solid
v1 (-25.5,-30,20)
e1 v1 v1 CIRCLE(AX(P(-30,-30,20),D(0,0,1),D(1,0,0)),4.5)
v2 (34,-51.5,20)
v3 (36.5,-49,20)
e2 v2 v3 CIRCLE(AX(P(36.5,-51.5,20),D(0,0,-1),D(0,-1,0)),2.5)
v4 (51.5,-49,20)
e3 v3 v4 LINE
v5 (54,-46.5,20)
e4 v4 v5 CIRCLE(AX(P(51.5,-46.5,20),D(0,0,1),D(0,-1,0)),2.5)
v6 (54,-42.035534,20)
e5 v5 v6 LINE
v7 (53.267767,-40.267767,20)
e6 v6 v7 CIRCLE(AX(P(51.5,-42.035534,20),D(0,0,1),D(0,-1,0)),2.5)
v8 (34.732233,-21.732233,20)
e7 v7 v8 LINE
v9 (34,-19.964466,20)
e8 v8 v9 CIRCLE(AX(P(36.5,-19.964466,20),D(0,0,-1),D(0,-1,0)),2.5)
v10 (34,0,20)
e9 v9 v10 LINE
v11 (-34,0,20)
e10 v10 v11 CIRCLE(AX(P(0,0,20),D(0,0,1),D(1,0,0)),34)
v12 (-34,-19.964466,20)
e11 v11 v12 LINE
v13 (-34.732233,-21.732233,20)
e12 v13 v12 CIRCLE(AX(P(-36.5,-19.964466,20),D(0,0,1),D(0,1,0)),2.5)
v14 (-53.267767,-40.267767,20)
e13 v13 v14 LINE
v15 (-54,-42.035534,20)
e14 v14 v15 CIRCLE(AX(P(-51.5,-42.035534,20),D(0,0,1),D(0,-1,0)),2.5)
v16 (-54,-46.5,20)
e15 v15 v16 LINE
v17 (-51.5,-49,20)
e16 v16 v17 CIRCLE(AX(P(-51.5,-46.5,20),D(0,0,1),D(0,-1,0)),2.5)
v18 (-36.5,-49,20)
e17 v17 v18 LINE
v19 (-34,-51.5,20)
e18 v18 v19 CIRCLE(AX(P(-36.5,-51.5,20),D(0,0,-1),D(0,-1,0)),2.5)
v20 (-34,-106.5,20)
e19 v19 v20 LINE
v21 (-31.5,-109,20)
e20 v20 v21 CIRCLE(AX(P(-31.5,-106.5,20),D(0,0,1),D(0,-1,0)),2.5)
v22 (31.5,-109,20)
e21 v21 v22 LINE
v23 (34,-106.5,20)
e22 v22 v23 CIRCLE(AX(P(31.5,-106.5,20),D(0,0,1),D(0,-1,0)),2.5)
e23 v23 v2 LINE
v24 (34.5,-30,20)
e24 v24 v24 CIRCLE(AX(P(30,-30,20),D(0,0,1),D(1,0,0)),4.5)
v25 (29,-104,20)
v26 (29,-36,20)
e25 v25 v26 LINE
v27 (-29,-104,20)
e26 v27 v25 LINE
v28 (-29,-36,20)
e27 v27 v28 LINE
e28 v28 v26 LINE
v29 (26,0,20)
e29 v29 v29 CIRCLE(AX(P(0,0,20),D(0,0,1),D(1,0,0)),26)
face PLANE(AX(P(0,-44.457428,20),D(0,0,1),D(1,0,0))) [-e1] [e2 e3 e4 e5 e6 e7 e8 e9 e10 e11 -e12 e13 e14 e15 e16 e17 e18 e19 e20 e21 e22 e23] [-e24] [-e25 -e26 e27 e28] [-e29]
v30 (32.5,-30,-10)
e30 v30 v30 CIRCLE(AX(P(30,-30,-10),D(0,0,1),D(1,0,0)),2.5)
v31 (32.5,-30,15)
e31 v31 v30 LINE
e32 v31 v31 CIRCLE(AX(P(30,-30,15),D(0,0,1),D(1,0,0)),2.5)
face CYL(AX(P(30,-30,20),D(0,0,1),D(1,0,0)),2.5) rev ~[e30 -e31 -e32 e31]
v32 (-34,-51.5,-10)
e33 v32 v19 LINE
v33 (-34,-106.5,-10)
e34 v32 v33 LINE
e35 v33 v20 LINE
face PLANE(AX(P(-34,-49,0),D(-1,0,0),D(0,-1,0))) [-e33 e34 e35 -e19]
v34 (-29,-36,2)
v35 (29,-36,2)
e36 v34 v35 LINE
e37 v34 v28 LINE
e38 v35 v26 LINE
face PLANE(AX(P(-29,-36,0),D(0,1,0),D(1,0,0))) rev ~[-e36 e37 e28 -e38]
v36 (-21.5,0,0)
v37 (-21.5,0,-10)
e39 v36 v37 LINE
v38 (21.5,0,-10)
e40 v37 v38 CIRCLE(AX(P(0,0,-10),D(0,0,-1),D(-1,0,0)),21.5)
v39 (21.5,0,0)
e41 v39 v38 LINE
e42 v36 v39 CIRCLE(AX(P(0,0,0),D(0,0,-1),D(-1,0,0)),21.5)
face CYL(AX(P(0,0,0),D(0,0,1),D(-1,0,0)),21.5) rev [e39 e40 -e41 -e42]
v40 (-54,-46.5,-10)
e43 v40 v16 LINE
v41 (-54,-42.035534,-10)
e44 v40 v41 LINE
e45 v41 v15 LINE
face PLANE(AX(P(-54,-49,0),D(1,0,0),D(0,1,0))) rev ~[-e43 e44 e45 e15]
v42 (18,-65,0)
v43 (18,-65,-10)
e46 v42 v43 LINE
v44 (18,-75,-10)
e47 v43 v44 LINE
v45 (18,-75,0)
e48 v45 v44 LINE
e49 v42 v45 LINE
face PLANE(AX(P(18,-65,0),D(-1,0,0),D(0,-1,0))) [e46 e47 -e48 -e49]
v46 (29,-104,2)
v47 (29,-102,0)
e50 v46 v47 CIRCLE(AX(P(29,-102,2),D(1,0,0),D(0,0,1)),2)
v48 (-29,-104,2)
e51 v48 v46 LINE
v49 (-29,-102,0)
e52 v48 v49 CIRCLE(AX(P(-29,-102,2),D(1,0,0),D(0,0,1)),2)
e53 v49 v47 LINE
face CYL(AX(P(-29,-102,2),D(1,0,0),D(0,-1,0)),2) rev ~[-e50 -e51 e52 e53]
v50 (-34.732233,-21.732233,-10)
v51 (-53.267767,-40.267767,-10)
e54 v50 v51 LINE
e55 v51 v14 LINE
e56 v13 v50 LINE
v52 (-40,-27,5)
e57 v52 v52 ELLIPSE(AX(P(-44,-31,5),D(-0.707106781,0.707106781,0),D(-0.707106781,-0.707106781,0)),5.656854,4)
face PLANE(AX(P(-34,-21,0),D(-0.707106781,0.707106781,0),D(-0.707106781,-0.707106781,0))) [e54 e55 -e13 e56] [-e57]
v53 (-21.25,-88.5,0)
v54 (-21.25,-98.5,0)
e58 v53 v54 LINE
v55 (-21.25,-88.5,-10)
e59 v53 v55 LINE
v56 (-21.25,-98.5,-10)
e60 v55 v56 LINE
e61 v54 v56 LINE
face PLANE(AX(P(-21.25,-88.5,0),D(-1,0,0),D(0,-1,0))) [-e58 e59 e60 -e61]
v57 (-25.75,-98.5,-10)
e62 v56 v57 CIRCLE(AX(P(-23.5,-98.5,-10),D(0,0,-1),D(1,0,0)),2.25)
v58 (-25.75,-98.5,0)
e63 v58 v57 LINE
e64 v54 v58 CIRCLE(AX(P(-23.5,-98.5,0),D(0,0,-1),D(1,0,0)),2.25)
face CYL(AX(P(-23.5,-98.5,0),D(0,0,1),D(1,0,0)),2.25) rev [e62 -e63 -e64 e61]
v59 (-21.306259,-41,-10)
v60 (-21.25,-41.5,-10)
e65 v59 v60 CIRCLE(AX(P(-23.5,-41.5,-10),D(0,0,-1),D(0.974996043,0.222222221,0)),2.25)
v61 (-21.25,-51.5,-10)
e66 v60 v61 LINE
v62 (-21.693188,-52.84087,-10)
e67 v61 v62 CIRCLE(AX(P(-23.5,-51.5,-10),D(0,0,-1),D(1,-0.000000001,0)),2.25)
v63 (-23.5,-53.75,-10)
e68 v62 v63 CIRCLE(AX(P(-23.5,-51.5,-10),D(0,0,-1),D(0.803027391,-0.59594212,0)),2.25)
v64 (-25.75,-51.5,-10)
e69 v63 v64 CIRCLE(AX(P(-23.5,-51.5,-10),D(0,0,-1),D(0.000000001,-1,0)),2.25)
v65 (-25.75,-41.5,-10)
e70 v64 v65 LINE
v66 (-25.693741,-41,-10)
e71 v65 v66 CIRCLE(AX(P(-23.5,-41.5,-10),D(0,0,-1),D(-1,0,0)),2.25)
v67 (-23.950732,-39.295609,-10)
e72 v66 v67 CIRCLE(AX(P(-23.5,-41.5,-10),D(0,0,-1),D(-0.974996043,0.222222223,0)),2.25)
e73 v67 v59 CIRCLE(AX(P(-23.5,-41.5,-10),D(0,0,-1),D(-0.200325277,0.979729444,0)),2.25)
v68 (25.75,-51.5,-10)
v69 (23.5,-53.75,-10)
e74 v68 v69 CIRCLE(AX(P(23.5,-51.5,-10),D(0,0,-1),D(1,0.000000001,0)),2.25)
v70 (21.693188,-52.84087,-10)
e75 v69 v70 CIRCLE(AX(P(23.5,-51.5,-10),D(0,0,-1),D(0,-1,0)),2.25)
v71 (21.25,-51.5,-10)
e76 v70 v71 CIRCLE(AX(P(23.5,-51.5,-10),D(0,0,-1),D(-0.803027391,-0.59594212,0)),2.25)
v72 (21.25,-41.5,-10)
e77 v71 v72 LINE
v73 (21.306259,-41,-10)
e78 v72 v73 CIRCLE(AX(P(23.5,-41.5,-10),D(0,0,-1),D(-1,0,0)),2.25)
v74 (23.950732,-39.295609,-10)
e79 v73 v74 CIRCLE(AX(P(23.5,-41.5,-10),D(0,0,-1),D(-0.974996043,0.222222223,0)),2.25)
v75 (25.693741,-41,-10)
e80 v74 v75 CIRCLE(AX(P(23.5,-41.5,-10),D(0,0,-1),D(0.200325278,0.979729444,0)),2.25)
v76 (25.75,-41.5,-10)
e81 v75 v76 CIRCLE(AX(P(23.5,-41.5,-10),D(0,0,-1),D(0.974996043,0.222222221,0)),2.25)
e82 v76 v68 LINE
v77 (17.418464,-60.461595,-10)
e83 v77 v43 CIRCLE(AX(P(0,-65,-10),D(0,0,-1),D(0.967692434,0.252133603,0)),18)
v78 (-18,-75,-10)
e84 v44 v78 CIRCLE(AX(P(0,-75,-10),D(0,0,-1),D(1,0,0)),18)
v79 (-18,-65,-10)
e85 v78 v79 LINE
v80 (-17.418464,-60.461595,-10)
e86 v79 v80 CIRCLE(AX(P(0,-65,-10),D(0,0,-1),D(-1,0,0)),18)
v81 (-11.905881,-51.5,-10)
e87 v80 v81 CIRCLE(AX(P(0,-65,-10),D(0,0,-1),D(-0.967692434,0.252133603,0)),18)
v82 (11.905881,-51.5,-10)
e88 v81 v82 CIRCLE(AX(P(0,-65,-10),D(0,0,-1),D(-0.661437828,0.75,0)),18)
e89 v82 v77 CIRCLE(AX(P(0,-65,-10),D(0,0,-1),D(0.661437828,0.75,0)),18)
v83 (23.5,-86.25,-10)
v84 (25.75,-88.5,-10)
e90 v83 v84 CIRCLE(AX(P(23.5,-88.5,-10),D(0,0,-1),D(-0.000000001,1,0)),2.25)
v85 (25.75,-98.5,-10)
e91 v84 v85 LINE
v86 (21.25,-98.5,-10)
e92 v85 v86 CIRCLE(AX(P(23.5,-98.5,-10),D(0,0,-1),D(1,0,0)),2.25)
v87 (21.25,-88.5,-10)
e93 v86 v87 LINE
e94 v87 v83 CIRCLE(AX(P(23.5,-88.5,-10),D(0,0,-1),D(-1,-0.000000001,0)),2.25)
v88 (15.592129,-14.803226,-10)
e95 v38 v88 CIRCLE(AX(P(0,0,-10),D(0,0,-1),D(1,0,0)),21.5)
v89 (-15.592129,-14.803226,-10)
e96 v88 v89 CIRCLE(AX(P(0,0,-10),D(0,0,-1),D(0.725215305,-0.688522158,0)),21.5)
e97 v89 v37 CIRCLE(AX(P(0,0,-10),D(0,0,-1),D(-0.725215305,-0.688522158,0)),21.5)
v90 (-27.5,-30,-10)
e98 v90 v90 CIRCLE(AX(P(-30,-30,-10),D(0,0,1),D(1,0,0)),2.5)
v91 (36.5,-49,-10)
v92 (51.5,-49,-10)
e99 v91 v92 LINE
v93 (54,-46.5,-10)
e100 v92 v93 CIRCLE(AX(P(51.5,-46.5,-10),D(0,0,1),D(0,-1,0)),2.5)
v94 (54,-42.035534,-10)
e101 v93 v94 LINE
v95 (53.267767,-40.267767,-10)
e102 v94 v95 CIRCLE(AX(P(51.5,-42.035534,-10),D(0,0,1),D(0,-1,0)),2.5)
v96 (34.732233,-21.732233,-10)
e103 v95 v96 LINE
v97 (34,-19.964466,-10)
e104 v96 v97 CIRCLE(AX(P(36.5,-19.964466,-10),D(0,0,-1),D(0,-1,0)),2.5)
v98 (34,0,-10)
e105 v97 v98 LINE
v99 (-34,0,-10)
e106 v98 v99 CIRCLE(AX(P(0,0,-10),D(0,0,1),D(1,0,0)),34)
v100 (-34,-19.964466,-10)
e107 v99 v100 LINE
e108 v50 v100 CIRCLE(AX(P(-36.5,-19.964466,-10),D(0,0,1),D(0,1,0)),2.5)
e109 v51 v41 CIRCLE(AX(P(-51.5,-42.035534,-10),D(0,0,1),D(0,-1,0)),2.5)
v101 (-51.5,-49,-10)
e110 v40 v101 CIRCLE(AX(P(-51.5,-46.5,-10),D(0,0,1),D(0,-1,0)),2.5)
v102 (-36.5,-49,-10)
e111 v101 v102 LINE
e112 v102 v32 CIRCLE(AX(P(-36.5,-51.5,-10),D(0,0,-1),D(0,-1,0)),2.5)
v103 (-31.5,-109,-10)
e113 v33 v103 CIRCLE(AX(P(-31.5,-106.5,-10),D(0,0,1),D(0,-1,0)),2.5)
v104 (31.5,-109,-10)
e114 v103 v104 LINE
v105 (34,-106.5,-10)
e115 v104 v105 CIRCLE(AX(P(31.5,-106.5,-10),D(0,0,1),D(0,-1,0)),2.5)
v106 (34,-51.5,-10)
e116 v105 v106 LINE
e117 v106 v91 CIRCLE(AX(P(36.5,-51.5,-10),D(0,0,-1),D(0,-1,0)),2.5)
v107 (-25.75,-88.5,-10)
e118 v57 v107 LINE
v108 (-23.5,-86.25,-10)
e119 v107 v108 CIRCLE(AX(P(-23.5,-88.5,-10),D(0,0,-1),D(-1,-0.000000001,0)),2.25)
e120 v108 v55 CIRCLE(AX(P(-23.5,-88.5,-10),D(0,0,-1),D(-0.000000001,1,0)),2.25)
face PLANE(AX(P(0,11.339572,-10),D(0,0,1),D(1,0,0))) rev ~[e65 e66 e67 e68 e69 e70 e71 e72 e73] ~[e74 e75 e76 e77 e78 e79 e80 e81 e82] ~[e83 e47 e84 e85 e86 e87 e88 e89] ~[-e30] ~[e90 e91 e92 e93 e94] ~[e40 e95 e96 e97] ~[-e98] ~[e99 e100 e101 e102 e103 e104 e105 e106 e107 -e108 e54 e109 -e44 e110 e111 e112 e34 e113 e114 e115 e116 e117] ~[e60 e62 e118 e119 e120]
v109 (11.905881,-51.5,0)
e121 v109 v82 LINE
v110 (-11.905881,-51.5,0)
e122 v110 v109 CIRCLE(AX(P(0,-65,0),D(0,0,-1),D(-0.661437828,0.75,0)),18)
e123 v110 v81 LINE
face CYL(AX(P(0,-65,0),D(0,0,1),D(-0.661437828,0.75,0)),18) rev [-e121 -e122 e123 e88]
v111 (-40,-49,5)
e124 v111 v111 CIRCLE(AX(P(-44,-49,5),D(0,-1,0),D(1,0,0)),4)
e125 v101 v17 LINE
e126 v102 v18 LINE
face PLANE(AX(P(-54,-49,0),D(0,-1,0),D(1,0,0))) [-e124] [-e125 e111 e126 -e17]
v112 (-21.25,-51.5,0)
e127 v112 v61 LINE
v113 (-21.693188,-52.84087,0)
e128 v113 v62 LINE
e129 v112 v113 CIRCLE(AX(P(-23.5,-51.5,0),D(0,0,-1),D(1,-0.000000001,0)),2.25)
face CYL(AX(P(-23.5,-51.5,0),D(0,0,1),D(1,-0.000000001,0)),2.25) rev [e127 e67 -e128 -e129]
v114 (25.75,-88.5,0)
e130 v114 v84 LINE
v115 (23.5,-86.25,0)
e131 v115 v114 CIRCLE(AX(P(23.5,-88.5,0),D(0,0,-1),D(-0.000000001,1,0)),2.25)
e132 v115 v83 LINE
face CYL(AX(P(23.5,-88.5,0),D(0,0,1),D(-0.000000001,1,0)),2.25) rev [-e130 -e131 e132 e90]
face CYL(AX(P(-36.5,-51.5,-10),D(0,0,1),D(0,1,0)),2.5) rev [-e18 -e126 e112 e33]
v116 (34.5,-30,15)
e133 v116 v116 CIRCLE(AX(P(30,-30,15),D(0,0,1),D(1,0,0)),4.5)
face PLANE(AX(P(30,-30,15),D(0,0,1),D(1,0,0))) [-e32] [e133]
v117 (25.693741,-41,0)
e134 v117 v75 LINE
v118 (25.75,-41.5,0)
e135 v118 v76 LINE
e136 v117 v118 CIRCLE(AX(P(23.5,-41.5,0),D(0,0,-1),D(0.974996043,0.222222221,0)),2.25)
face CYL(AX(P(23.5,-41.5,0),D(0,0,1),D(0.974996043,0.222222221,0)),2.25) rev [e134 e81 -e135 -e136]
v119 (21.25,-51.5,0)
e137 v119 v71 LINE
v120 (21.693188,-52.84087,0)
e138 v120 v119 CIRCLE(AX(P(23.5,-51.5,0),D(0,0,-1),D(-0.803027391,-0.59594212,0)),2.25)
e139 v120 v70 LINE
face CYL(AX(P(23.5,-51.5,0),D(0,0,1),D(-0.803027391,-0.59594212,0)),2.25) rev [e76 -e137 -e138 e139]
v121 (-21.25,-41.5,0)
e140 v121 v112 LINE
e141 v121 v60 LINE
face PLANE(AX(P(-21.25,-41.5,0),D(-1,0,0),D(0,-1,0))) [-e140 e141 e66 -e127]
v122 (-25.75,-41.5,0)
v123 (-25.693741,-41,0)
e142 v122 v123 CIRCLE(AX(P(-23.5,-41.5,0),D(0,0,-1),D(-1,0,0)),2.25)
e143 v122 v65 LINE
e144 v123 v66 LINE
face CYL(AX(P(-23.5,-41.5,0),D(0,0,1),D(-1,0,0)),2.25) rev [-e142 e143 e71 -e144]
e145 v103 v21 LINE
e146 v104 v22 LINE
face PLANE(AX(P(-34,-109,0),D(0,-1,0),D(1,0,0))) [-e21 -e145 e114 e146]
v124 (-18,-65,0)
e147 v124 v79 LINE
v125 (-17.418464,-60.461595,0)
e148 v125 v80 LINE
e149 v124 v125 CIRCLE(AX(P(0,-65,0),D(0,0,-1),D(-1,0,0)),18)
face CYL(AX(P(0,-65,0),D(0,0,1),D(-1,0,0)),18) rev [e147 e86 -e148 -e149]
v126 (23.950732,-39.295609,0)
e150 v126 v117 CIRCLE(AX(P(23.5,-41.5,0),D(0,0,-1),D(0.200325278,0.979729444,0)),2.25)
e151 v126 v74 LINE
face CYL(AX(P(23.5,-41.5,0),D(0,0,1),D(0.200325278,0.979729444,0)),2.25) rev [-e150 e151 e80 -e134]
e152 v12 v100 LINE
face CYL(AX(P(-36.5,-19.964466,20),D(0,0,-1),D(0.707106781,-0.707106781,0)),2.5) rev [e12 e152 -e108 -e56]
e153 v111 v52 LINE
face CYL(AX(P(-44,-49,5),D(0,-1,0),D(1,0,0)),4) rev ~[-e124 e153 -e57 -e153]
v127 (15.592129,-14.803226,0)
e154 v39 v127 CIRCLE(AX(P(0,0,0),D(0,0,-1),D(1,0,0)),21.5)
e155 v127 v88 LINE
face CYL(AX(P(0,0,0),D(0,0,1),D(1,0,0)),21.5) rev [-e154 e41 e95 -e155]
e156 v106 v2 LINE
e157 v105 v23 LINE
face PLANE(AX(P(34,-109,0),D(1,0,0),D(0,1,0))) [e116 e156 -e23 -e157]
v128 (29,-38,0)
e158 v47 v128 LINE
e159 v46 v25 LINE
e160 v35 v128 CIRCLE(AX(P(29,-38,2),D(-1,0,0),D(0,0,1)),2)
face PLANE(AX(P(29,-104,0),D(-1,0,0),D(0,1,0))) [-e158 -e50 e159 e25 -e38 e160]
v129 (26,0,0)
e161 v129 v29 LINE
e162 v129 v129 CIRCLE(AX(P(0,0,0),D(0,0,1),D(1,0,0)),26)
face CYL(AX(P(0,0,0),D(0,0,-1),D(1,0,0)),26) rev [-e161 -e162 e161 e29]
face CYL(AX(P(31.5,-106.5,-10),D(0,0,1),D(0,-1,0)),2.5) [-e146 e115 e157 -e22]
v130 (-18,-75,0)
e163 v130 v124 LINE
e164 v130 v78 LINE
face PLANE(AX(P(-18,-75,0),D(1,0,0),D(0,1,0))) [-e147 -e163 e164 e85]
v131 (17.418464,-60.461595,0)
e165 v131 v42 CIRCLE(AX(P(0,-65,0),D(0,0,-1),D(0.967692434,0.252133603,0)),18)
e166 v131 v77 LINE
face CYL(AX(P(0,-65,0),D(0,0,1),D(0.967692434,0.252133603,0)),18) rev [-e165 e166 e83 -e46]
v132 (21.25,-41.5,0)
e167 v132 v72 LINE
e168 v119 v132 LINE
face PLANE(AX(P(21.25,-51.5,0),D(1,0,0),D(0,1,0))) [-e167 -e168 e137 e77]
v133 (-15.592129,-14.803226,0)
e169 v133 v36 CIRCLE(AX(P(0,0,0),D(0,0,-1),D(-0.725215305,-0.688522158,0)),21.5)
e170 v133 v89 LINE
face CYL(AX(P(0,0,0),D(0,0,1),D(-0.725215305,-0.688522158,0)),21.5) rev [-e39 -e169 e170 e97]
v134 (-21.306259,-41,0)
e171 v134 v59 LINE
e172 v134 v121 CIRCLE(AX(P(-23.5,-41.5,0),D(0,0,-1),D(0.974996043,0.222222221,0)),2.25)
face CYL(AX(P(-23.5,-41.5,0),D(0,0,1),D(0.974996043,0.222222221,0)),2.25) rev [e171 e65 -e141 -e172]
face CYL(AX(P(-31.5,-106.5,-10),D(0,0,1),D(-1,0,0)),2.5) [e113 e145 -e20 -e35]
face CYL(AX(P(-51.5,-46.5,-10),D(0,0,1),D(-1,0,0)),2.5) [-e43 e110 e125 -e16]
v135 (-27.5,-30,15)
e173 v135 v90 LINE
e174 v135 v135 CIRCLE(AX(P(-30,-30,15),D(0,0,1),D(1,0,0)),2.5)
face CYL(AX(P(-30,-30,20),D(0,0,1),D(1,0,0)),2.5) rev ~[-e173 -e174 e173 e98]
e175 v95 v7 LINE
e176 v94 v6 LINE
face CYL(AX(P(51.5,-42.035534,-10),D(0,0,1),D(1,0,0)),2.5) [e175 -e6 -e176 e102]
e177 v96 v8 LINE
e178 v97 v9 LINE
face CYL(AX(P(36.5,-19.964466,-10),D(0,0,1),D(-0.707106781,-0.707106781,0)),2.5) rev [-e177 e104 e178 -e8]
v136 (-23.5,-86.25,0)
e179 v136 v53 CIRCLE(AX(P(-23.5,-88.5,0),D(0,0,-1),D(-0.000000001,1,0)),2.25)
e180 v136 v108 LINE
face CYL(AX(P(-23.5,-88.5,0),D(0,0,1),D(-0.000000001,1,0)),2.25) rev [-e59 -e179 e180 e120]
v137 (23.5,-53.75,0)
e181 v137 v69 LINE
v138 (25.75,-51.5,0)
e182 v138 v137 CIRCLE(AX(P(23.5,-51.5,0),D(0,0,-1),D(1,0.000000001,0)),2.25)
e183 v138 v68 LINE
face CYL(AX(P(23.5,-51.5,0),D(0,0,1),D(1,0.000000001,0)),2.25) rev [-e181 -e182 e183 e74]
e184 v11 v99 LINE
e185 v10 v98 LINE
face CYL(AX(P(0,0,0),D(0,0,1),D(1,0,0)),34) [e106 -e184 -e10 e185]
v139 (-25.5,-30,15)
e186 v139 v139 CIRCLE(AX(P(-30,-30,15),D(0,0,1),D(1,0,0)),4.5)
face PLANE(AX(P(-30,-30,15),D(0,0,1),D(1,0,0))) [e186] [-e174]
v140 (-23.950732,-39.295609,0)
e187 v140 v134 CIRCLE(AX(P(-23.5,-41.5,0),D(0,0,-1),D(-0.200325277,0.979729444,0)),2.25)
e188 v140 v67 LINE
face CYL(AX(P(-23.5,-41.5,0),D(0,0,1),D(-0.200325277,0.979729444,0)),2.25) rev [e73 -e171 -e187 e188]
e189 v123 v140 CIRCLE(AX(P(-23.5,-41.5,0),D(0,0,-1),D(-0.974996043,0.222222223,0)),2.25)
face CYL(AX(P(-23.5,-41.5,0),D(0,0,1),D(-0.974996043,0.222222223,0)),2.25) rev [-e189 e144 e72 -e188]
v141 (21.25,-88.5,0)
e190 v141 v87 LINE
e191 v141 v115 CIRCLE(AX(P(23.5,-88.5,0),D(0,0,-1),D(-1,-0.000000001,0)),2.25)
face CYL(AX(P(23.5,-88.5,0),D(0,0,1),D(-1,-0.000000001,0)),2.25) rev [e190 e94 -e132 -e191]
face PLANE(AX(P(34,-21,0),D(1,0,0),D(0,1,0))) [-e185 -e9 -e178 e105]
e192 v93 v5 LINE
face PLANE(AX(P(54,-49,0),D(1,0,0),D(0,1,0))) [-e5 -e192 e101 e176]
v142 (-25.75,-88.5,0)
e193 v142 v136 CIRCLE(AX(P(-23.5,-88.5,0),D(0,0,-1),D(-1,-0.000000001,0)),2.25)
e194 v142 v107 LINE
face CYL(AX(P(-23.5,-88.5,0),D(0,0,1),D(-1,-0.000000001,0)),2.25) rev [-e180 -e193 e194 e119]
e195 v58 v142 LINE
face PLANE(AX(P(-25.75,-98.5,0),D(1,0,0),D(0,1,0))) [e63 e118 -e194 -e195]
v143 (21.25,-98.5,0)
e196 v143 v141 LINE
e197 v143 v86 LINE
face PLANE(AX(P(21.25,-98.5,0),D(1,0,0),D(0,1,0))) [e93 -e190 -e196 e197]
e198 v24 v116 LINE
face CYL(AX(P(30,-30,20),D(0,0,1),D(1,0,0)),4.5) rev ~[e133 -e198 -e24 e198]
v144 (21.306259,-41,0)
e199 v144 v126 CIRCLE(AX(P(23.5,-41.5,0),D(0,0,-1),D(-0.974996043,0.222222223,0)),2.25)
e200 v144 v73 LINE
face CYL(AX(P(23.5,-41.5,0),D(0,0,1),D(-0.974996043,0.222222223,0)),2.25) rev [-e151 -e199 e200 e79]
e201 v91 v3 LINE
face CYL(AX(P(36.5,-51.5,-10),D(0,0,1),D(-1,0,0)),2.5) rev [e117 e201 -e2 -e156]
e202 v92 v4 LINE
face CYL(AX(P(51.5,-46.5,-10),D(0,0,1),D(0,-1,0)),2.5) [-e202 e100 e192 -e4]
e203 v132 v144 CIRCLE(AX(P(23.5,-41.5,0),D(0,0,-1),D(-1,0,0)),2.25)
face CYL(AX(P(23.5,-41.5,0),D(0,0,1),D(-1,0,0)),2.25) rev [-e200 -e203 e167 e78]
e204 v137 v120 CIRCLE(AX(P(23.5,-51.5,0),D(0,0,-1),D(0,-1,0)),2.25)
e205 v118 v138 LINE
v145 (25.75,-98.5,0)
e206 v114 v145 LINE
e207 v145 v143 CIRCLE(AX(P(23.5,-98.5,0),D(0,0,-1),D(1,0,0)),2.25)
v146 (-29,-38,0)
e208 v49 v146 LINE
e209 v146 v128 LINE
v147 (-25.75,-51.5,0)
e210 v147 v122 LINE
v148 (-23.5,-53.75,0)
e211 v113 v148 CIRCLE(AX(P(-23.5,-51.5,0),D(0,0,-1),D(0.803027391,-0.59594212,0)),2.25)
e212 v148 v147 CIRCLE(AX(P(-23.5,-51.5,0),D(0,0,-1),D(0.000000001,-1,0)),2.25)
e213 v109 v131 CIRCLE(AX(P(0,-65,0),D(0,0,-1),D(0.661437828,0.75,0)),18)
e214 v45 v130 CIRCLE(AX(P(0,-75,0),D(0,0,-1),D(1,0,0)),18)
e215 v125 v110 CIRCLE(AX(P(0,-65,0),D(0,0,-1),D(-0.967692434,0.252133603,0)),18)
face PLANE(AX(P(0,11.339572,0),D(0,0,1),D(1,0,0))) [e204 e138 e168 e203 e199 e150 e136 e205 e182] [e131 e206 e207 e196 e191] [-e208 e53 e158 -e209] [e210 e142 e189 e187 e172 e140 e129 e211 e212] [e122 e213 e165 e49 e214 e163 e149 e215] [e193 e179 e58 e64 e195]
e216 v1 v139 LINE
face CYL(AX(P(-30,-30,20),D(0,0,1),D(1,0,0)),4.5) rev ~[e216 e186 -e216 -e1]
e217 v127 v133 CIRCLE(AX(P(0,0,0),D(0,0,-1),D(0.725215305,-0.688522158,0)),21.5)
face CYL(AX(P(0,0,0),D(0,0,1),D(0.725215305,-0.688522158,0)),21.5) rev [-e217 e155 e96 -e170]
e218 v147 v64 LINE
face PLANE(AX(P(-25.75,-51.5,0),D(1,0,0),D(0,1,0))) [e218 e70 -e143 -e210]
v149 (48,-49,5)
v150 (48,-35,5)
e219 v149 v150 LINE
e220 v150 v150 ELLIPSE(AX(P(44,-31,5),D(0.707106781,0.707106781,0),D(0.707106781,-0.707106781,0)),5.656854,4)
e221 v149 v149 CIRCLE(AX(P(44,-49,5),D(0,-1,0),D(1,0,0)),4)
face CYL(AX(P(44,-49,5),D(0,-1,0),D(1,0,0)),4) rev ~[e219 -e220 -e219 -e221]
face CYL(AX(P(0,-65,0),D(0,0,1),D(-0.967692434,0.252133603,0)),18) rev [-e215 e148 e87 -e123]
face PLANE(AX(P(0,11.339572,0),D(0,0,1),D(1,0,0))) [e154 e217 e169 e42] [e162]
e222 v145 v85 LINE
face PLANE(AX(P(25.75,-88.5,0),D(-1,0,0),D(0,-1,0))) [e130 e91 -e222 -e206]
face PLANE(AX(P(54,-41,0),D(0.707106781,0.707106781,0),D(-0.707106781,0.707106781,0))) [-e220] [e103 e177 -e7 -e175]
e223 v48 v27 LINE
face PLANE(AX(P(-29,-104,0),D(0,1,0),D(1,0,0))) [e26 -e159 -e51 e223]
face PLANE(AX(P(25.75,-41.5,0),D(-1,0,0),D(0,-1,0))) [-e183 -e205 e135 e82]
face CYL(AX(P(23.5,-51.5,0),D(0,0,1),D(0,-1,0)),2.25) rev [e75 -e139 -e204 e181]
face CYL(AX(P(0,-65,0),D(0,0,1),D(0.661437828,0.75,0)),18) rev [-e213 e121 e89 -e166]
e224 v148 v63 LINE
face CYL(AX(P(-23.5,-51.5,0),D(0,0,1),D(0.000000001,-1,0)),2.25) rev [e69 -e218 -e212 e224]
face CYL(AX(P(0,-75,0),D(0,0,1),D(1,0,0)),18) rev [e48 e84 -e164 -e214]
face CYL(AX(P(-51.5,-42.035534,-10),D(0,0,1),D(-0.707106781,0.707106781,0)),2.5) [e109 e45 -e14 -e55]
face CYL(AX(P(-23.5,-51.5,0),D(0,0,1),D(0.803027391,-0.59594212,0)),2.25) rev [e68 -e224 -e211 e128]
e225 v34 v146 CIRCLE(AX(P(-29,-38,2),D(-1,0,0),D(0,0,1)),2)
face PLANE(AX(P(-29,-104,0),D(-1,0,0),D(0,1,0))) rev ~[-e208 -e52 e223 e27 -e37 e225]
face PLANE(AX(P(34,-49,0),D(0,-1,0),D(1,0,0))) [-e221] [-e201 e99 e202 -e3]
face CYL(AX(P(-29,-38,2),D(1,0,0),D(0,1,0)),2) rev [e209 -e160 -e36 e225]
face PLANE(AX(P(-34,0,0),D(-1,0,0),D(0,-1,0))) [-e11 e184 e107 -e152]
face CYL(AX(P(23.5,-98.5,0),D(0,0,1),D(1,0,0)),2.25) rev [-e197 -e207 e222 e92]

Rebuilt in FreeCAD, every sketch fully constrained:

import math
import FreeCAD as App
import Part
import Sketcher
from FreeCAD import Vector
Q = App.Units.Quantity


def edges_at(feature, points):
    """Names of the edges that pass closest to the given points."""
    edges = feature.Shape.Edges
    near = lambda p: min(range(len(edges)), key=lambda i: edges[i].distToShape(Part.Vertex(*p))[0])
    return sorted({f"Edge{near(p) + 1}" for p in points})


def add_polygon(sketch, points):
    """Adds a closed chain of lines whose ends are joined by coincident constraints."""
    first, n = sketch.GeometryCount, len(points)
    for a, b in zip(points, points[1:] + points[:1]):
        sketch.addGeometry(Part.LineSegment(App.Vector(*a, 0), App.Vector(*b, 0)), False)
    for i in range(n):
        sketch.addConstraint(Sketcher.Constraint("Coincident", first + i, 2, first + (i + 1) % n, 1))

doc = App.newDocument("Part")
body = doc.addObject("PartDesign::Body", "Body")

# Sketch on XY plane
sketch1 = doc.addObject("Sketcher::SketchObject", "Sketch")
body.addObject(sketch1)
sketch1.AttachmentSupport = (doc.XY_Plane, [""])
sketch1.MapMode = "FlatFace"
sketch1.addGeometry(Part.LineSegment(Vector(34, -109, 0), Vector(34, -49, 0)), False)  # 0
sketch1.addGeometry(Part.LineSegment(Vector(34, -49, 0), Vector(54, -49, 0)), False)  # 1
sketch1.addGeometry(Part.LineSegment(Vector(54, -49, 0), Vector(54, -41, 0)), False)  # 2
sketch1.addGeometry(Part.LineSegment(Vector(54, -41, 0), Vector(34, -21, 0)), False)  # 3
sketch1.addGeometry(Part.LineSegment(Vector(34, -21, 0), Vector(34, 0, 0)), False)  # 4
sketch1.addGeometry(Part.ArcOfCircle(Part.Circle(Vector(0, 0, 0), Vector(0, 0, 1), 34), math.radians(0), math.radians(180)), False)  # 5
sketch1.addGeometry(Part.LineSegment(Vector(-34, 0, 0), Vector(-34, -21, 0)), False)  # 6
sketch1.addGeometry(Part.LineSegment(Vector(-34, -21, 0), Vector(-54, -41, 0)), False)  # 7
sketch1.addGeometry(Part.LineSegment(Vector(-54, -41, 0), Vector(-54, -49, 0)), False)  # 8
sketch1.addGeometry(Part.LineSegment(Vector(-54, -49, 0), Vector(-34, -49, 0)), False)  # 9
sketch1.addGeometry(Part.LineSegment(Vector(-34, -49, 0), Vector(-34, -109, 0)), False)  # 10
sketch1.addGeometry(Part.LineSegment(Vector(-34, -109, 0), Vector(34, -109, 0)), False)  # 11
add_polygon(sketch1, [(29, -104), (-29, -104), (-29, -36), (29, -36)])  # lines 12-15
sketch1.addGeometry(Part.Circle(Vector(0, 0, 0), Vector(0, 0, 1), 26), False)  # 16
sketch1.addConstraint(Sketcher.Constraint("Coincident", 0, 2, 1, 1))
sketch1.addConstraint(Sketcher.Constraint("Coincident", 1, 2, 2, 1))
sketch1.addConstraint(Sketcher.Constraint("Coincident", 2, 2, 3, 1))
sketch1.addConstraint(Sketcher.Constraint("Coincident", 3, 2, 4, 1))
sketch1.addConstraint(Sketcher.Constraint("Tangent", 4, 2, 5, 1))
sketch1.addConstraint(Sketcher.Constraint("Tangent", 5, 2, 6, 1))
sketch1.addConstraint(Sketcher.Constraint("Coincident", 6, 2, 7, 1))
sketch1.addConstraint(Sketcher.Constraint("Coincident", 7, 2, 8, 1))
sketch1.addConstraint(Sketcher.Constraint("Coincident", 8, 2, 9, 1))
sketch1.addConstraint(Sketcher.Constraint("Coincident", 9, 2, 10, 1))
sketch1.addConstraint(Sketcher.Constraint("Coincident", 10, 2, 11, 1))
sketch1.addConstraint(Sketcher.Constraint("Coincident", 11, 2, 0, 1))
sketch1.addConstraint(Sketcher.Constraint("Vertical", 0))
sketch1.addConstraint(Sketcher.Constraint("Horizontal", 1))
sketch1.addConstraint(Sketcher.Constraint("Vertical", 2))
sketch1.addConstraint(Sketcher.Constraint("Vertical", 4))
sketch1.addConstraint(Sketcher.Constraint("Vertical", 6))
sketch1.addConstraint(Sketcher.Constraint("Vertical", 8))
sketch1.addConstraint(Sketcher.Constraint("Horizontal", 9))
sketch1.addConstraint(Sketcher.Constraint("Vertical", 10))
sketch1.addConstraint(Sketcher.Constraint("Horizontal", 11))
sketch1.addConstraint(Sketcher.Constraint("Horizontal", 12))
sketch1.addConstraint(Sketcher.Constraint("Vertical", 13))
sketch1.addConstraint(Sketcher.Constraint("Horizontal", 14))
sketch1.addConstraint(Sketcher.Constraint("Vertical", 15))
sketch1.addConstraint(Sketcher.Constraint("Coincident", 5, 3, -1, 1))
sketch1.addConstraint(Sketcher.Constraint("Coincident", 16, 3, -1, 1))
sketch1.addConstraint(Sketcher.Constraint("Symmetric", 2, 2, 7, 2, -2))
sketch1.addConstraint(Sketcher.Constraint("Symmetric", 0, 2, 9, 2, -2))
sketch1.addConstraint(Sketcher.Constraint("Perpendicular", 3, 7))
sketch1.addConstraint(Sketcher.Constraint("Horizontal", 3, 2, 6, 2))
sketch1.addConstraint(Sketcher.Constraint("Vertical", 0, 2, 3, 2))
sketch1.addConstraint(Sketcher.Constraint("Equal", 11, 13))
sketch1.addConstraint(Sketcher.Constraint("Diameter", 16, Q("52 mm")))
sketch1.addConstraint(Sketcher.Constraint("Radius", 5, Q("34 mm")))
sketch1.addConstraint(Sketcher.Constraint("DistanceX", 1, 1, 1, 2, Q("20 mm")))
sketch1.addConstraint(Sketcher.Constraint("DistanceX", 12, 2, 12, 1, Q("58 mm")))
sketch1.addConstraint(Sketcher.Constraint("DistanceY", 0, 1, 0, 2, Q("60 mm")))
sketch1.addConstraint(Sketcher.Constraint("DistanceY", 2, 1, 2, 2, Q("8 mm")))
sketch1.addConstraint(Sketcher.Constraint("DistanceY", 4, 1, 4, 2, Q("21 mm")))
sketch1.addConstraint(Sketcher.Constraint("DistanceX", 12, 2, -1, 1, Q("29 mm")))
sketch1.addConstraint(Sketcher.Constraint("DistanceY", 12, 2, -1, 1, Q("104 mm")))
pad1 = doc.addObject("PartDesign::Pad", "Pad")
body.addObject(pad1)
pad1.Profile = sketch1
pad1.Length = 20

# Sketch on XY plane
sketch2 = doc.addObject("Sketcher::SketchObject", "Sketch001")
body.addObject(sketch2)
sketch2.AttachmentSupport = (doc.XY_Plane, [""])
sketch2.MapMode = "FlatFace"
sketch2.addGeometry(Part.LineSegment(Vector(-34, -21, 0), Vector(-54, -41, 0)), False)
sketch2.addGeometry(Part.LineSegment(Vector(-54, -41, 0), Vector(-54, -49, 0)), False)
sketch2.addGeometry(Part.LineSegment(Vector(-54, -49, 0), Vector(-34, -49, 0)), False)
sketch2.addGeometry(Part.LineSegment(Vector(-34, -49, 0), Vector(-34, -109, 0)), False)
sketch2.addGeometry(Part.LineSegment(Vector(-34, -109, 0), Vector(34, -109, 0)), False)
sketch2.addGeometry(Part.LineSegment(Vector(34, -109, 0), Vector(34, -49, 0)), False)
sketch2.addGeometry(Part.LineSegment(Vector(34, -49, 0), Vector(54, -49, 0)), False)
sketch2.addGeometry(Part.LineSegment(Vector(54, -49, 0), Vector(54, -41, 0)), False)
sketch2.addGeometry(Part.LineSegment(Vector(54, -41, 0), Vector(34, -21, 0)), False)
sketch2.addGeometry(Part.LineSegment(Vector(34, -21, 0), Vector(34, 0, 0)), False)
sketch2.addGeometry(Part.ArcOfCircle(Part.Circle(Vector(0, 0, 0), Vector(0, 0, 1), 34), math.radians(0), math.radians(180)), False)
sketch2.addGeometry(Part.LineSegment(Vector(-34, 0, 0), Vector(-34, -21, 0)), False)
sketch2.addGeometry(Part.ArcOfCircle(Part.Circle(Vector(-23.5, -98.5, 0), Vector(0, 0, 1), 2.2), math.radians(180), math.radians(360)), False)
sketch2.addGeometry(Part.LineSegment(Vector(-25.8, -98.5, 0), Vector(-25.8, -88.5, 0)), False)
sketch2.addGeometry(Part.ArcOfCircle(Part.Circle(Vector(-23.5, -88.5, 0), Vector(0, 0, 1), 2.2), math.radians(90), math.radians(180)), False)
sketch2.addGeometry(Part.ArcOfCircle(Part.Circle(Vector(-23.5, -88.5, 0), Vector(0, 0, 1), 2.2), math.radians(0), math.radians(90)), False)
sketch2.addGeometry(Part.LineSegment(Vector(-21.2, -88.5, 0), Vector(-21.2, -98.5, 0)), False)
sketch2.addGeometry(Part.ArcOfCircle(Part.Circle(Vector(-23.5, -41.5, 0), Vector(0, 0, 1), 2.3), math.radians(167.16), math.radians(180)), False)
sketch2.addGeometry(Part.ArcOfCircle(Part.Circle(Vector(-23.5, -41.5, 0), Vector(0, 0, 1), 2.3), math.radians(102), math.radians(167)), False)
sketch2.addGeometry(Part.ArcOfCircle(Part.Circle(Vector(-23.5, -41.5, 0), Vector(0, 0, 1), 2.3), math.radians(13), math.radians(102)), False)
sketch2.addGeometry(Part.ArcOfCircle(Part.Circle(Vector(-23.5, -41.5, 0), Vector(0, 0, 1), 2.3), math.radians(0), math.radians(12.84)), False)
sketch2.addGeometry(Part.LineSegment(Vector(-21.2, -41.5, 0), Vector(-21.2, -51.5, 0)), False)
sketch2.addGeometry(Part.ArcOfCircle(Part.Circle(Vector(-23.5, -51.5, 0), Vector(0, 0, 1), 2.3), math.radians(-37), math.radians(0)), False)
sketch2.addGeometry(Part.ArcOfCircle(Part.Circle(Vector(-23.5, -51.5, 0), Vector(0, 0, 1), 2.2), math.radians(-90), math.radians(-37)), False)
sketch2.addGeometry(Part.ArcOfCircle(Part.Circle(Vector(-23.5, -51.5, 0), Vector(0, 0, 1), 2.2), math.radians(180), math.radians(270)), False)
sketch2.addGeometry(Part.LineSegment(Vector(-25.8, -51.5, 0), Vector(-25.8, -41.5, 0)), False)
sketch2.addGeometry(Part.ArcOfCircle(Part.Circle(Vector(0, -75, 0), Vector(0, 0, 1), 18), math.radians(180), math.radians(360)), False)
sketch2.addGeometry(Part.LineSegment(Vector(-18, -75, 0), Vector(-18, -65, 0)), False)
sketch2.addGeometry(Part.ArcOfCircle(Part.Circle(Vector(0, -65, 0), Vector(0, 0, 1), 18), math.radians(165.4), math.radians(180)), False)
sketch2.addGeometry(Part.ArcOfCircle(Part.Circle(Vector(0, -65, 0), Vector(0, 0, 1), 18), math.radians(131), math.radians(165)), False)
sketch2.addGeometry(Part.ArcOfCircle(Part.Circle(Vector(0, -65, 0), Vector(0, 0, 1), 18), math.radians(49), math.radians(131)), False)
sketch2.addGeometry(Part.ArcOfCircle(Part.Circle(Vector(0, -65, 0), Vector(0, 0, 1), 18), math.radians(15), math.radians(49)), False)
sketch2.addGeometry(Part.ArcOfCircle(Part.Circle(Vector(0, -65, 0), Vector(0, 0, 1), 18), math.radians(0), math.radians(14.6)), False)
sketch2.addGeometry(Part.LineSegment(Vector(18, -65, 0), Vector(18, -75, 0)), False)
sketch2.addGeometry(Part.ArcOfCircle(Part.Circle(Vector(23.5, -88.5, 0), Vector(0, 0, 1), 2.2), math.radians(0), math.radians(90)), False)
sketch2.addGeometry(Part.LineSegment(Vector(25.8, -88.5, 0), Vector(25.8, -98.5, 0)), False)
sketch2.addGeometry(Part.ArcOfCircle(Part.Circle(Vector(23.5, -98.5, 0), Vector(0, 0, 1), 2.2), math.radians(180), math.radians(360)), False)
sketch2.addGeometry(Part.LineSegment(Vector(21.2, -98.5, 0), Vector(21.2, -88.5, 0)), False)
sketch2.addGeometry(Part.ArcOfCircle(Part.Circle(Vector(23.5, -88.5, 0), Vector(0, 0, 1), 2.2), math.radians(90), math.radians(180)), False)
sketch2.addGeometry(Part.ArcOfCircle(Part.Circle(Vector(23.5, -41.5, 0), Vector(0, 0, 1), 2.3), math.radians(167.16), math.radians(180)), False)
sketch2.addGeometry(Part.ArcOfCircle(Part.Circle(Vector(23.5, -41.5, 0), Vector(0, 0, 1), 2.3), math.radians(78), math.radians(167)), False)
sketch2.addGeometry(Part.ArcOfCircle(Part.Circle(Vector(23.5, -41.5, 0), Vector(0, 0, 1), 2.3), math.radians(13), math.radians(78)), False)
sketch2.addGeometry(Part.ArcOfCircle(Part.Circle(Vector(23.5, -41.5, 0), Vector(0, 0, 1), 2.3), math.radians(0), math.radians(12.84)), False)
sketch2.addGeometry(Part.LineSegment(Vector(25.8, -41.5, 0), Vector(25.8, -51.5, 0)), False)
sketch2.addGeometry(Part.ArcOfCircle(Part.Circle(Vector(23.5, -51.5, 0), Vector(0, 0, 1), 2.2), math.radians(-90), math.radians(0)), False)
sketch2.addGeometry(Part.ArcOfCircle(Part.Circle(Vector(23.5, -51.5, 0), Vector(0, 0, 1), 2.2), math.radians(-143), math.radians(-90)), False)
sketch2.addGeometry(Part.ArcOfCircle(Part.Circle(Vector(23.5, -51.5, 0), Vector(0, 0, 1), 2.3), math.radians(-180), math.radians(-143)), False)
sketch2.addGeometry(Part.LineSegment(Vector(21.2, -51.5, 0), Vector(21.2, -41.5, 0)), False)
sketch2.addGeometry(Part.ArcOfCircle(Part.Circle(Vector(0, 0, 0), Vector(0, 0, 1), 21.5), math.radians(0), math.radians(180)), False)
sketch2.addGeometry(Part.ArcOfCircle(Part.Circle(Vector(0, 0, 0), Vector(0, 0, 1), 21.5), math.radians(-44), math.radians(0)), False)
sketch2.addGeometry(Part.ArcOfCircle(Part.Circle(Vector(0, 0, 0), Vector(0, 0, 1), 21.5), math.radians(-136), math.radians(-44)), False)
sketch2.addGeometry(Part.ArcOfCircle(Part.Circle(Vector(0, 0, 0), Vector(0, 0, 1), 21.5), math.radians(180), math.radians(224)), False)
sketch2.addConstraint(Sketcher.Constraint("Coincident", 0, 2, 1, 1))
sketch2.addConstraint(Sketcher.Constraint("Coincident", 1, 2, 2, 1))
sketch2.addConstraint(Sketcher.Constraint("Coincident", 2, 2, 3, 1))
sketch2.addConstraint(Sketcher.Constraint("Coincident", 3, 2, 4, 1))
sketch2.addConstraint(Sketcher.Constraint("Coincident", 4, 2, 5, 1))
sketch2.addConstraint(Sketcher.Constraint("Coincident", 5, 2, 6, 1))
sketch2.addConstraint(Sketcher.Constraint("Coincident", 6, 2, 7, 1))
sketch2.addConstraint(Sketcher.Constraint("Coincident", 7, 2, 8, 1))
sketch2.addConstraint(Sketcher.Constraint("Coincident", 8, 2, 9, 1))
sketch2.addConstraint(Sketcher.Constraint("Tangent", 9, 2, 10, 1))
sketch2.addConstraint(Sketcher.Constraint("Tangent", 10, 2, 11, 1))
sketch2.addConstraint(Sketcher.Constraint("Coincident", 11, 2, 0, 1))
sketch2.addConstraint(Sketcher.Constraint("Tangent", 12, 1, 13, 1))
sketch2.addConstraint(Sketcher.Constraint("Tangent", 13, 2, 14, 2))
sketch2.addConstraint(Sketcher.Constraint("Tangent", 14, 1, 15, 2))
sketch2.addConstraint(Sketcher.Constraint("Tangent", 15, 1, 16, 1))
sketch2.addConstraint(Sketcher.Constraint("Tangent", 16, 2, 12, 2))
sketch2.addConstraint(Sketcher.Constraint("Tangent", 17, 1, 18, 2))
sketch2.addConstraint(Sketcher.Constraint("Tangent", 18, 1, 19, 2))
sketch2.addConstraint(Sketcher.Constraint("Tangent", 19, 1, 20, 2))
sketch2.addConstraint(Sketcher.Constraint("Tangent", 20, 1, 21, 1))
sketch2.addConstraint(Sketcher.Constraint("Tangent", 21, 2, 22, 2))
sketch2.addConstraint(Sketcher.Constraint("Tangent", 22, 1, 23, 2))
sketch2.addConstraint(Sketcher.Constraint("Tangent", 23, 1, 24, 2))
sketch2.addConstraint(Sketcher.Constraint("Tangent", 24, 1, 25, 1))
sketch2.addConstraint(Sketcher.Constraint("Tangent", 25, 2, 17, 2))
sketch2.addConstraint(Sketcher.Constraint("Tangent", 26, 1, 27, 1))
sketch2.addConstraint(Sketcher.Constraint("Tangent", 27, 2, 28, 2))
sketch2.addConstraint(Sketcher.Constraint("Tangent", 28, 1, 29, 2))
sketch2.addConstraint(Sketcher.Constraint("Tangent", 29, 1, 30, 2))
sketch2.addConstraint(Sketcher.Constraint("Tangent", 30, 1, 31, 2))
sketch2.addConstraint(Sketcher.Constraint("Tangent", 31, 1, 32, 2))
sketch2.addConstraint(Sketcher.Constraint("Tangent", 32, 1, 33, 1))
sketch2.addConstraint(Sketcher.Constraint("Tangent", 33, 2, 26, 2))
sketch2.addConstraint(Sketcher.Constraint("Tangent", 34, 1, 35, 1))
sketch2.addConstraint(Sketcher.Constraint("Tangent", 35, 2, 36, 2))
sketch2.addConstraint(Sketcher.Constraint("Tangent", 36, 1, 37, 1))
sketch2.addConstraint(Sketcher.Constraint("Tangent", 37, 2, 38, 2))
sketch2.addConstraint(Sketcher.Constraint("Tangent", 38, 1, 34, 2))
sketch2.addConstraint(Sketcher.Constraint("Tangent", 39, 1, 40, 2))
sketch2.addConstraint(Sketcher.Constraint("Tangent", 40, 1, 41, 2))
sketch2.addConstraint(Sketcher.Constraint("Tangent", 41, 1, 42, 2))
sketch2.addConstraint(Sketcher.Constraint("Tangent", 42, 1, 43, 1))
sketch2.addConstraint(Sketcher.Constraint("Tangent", 43, 2, 44, 2))
sketch2.addConstraint(Sketcher.Constraint("Tangent", 44, 1, 45, 2))
sketch2.addConstraint(Sketcher.Constraint("Tangent", 45, 1, 46, 2))
sketch2.addConstraint(Sketcher.Constraint("Tangent", 46, 1, 47, 1))
sketch2.addConstraint(Sketcher.Constraint("Tangent", 47, 2, 39, 2))
sketch2.addConstraint(Sketcher.Constraint("Tangent", 48, 1, 49, 2))
sketch2.addConstraint(Sketcher.Constraint("Tangent", 49, 1, 50, 2))
sketch2.addConstraint(Sketcher.Constraint("Tangent", 50, 1, 51, 2))
sketch2.addConstraint(Sketcher.Constraint("Tangent", 51, 1, 48, 2))
sketch2.addConstraint(Sketcher.Constraint("Vertical", 1))
sketch2.addConstraint(Sketcher.Constraint("Horizontal", 2))
sketch2.addConstraint(Sketcher.Constraint("Vertical", 3))
sketch2.addConstraint(Sketcher.Constraint("Horizontal", 4))
sketch2.addConstraint(Sketcher.Constraint("Vertical", 5))
sketch2.addConstraint(Sketcher.Constraint("Horizontal", 6))
sketch2.addConstraint(Sketcher.Constraint("Vertical", 7))
sketch2.addConstraint(Sketcher.Constraint("Vertical", 9))
sketch2.addConstraint(Sketcher.Constraint("Vertical", 11))
sketch2.addConstraint(Sketcher.Constraint("Vertical", 13))
sketch2.addConstraint(Sketcher.Constraint("Vertical", 16))
sketch2.addConstraint(Sketcher.Constraint("Vertical", 21))
sketch2.addConstraint(Sketcher.Constraint("Vertical", 25))
sketch2.addConstraint(Sketcher.Constraint("Vertical", 27))
sketch2.addConstraint(Sketcher.Constraint("Vertical", 33))
sketch2.addConstraint(Sketcher.Constraint("Vertical", 35))
sketch2.addConstraint(Sketcher.Constraint("Vertical", 37))
sketch2.addConstraint(Sketcher.Constraint("Vertical", 43))
sketch2.addConstraint(Sketcher.Constraint("Vertical", 47))
sketch2.addConstraint(Sketcher.Constraint("Coincident", 10, 3, -1, 1))
sketch2.addConstraint(Sketcher.Constraint("Coincident", 48, 3, -1, 1))
sketch2.addConstraint(Sketcher.Constraint("Coincident", 19, 3, 17, 3))
sketch2.addConstraint(Sketcher.Constraint("Coincident", 24, 3, 22, 3))
sketch2.addConstraint(Sketcher.Constraint("Coincident", 30, 3, 28, 3))
sketch2.addConstraint(Sketcher.Constraint("Coincident", 32, 3, 28, 3))
sketch2.addConstraint(Sketcher.Constraint("Coincident", 41, 3, 39, 3))
sketch2.addConstraint(Sketcher.Constraint("Coincident", 46, 3, 44, 3))
sketch2.addConstraint(Sketcher.Constraint("Equal", 12, 14))
sketch2.addConstraint(Sketcher.Constraint("Equal", 15, 17))
sketch2.addConstraint(Sketcher.Constraint("Equal", 19, 20))
sketch2.addConstraint(Sketcher.Constraint("Equal", 24, 34))
sketch2.addConstraint(Sketcher.Constraint("Equal", 34, 36))
sketch2.addConstraint(Sketcher.Constraint("Equal", 38, 39))
sketch2.addConstraint(Sketcher.Constraint("Equal", 41, 42))
sketch2.addConstraint(Sketcher.Constraint("Equal", 48, 49))
sketch2.addConstraint(Sketcher.Constraint("Symmetric", 14, 3, 34, 3, -2))
sketch2.addConstraint(Sketcher.Constraint("Symmetric", 17, 3, 39, 3, -2))
sketch2.addConstraint(Sketcher.Constraint("Symmetric", 2, 2, 5, 2, -2))
sketch2.addConstraint(Sketcher.Constraint("Symmetric", 0, 2, 7, 2, -2))
sketch2.addConstraint(Sketcher.Constraint("Symmetric", 29, 1, 30, 1, -2))
sketch2.addConstraint(Sketcher.Constraint("Symmetric", 23, 1, 44, 1, -2))
sketch2.addConstraint(Sketcher.Constraint("PointOnObject", 48, 1, -1))
sketch2.addConstraint(Sketcher.Constraint("PointOnObject", 51, 1, -1))
sketch2.addConstraint(Sketcher.Constraint("Perpendicular", 0, 8))
sketch2.addConstraint(Sketcher.Constraint("Horizontal", 12, 3, 36, 3))
sketch2.addConstraint(Sketcher.Constraint("Horizontal", 8, 2, 11, 2))
sketch2.addConstraint(Sketcher.Constraint("Horizontal", 7, 2, 17, 1))
sketch2.addConstraint(Sketcher.Constraint("Horizontal", 17, 1, 19, 1))
sketch2.addConstraint(Sketcher.Constraint("Horizontal", 24, 1, 29, 1))
sketch2.addConstraint(Sketcher.Constraint("Horizontal", 28, 1, 31, 1))
sketch2.addConstraint(Sketcher.Constraint("Horizontal", 19, 1, 39, 1))
sketch2.addConstraint(Sketcher.Constraint("Horizontal", 18, 1, 40, 1))
sketch2.addConstraint(Sketcher.Constraint("Horizontal", 39, 1, 41, 1))
sketch2.addConstraint(Sketcher.Constraint("Horizontal", 22, 1, 45, 1))
sketch2.addConstraint(Sketcher.Constraint("Horizontal", 49, 1, 50, 1))
sketch2.addConstraint(Sketcher.Constraint("Vertical", 15, 3, 17, 3))
sketch2.addConstraint(Sketcher.Constraint("Vertical", 5, 2, 8, 2))
sketch2.addConstraint(Sketcher.Constraint("Vertical", 24, 3, 14, 1))
sketch2.addConstraint(Sketcher.Constraint("Vertical", 14, 1, 23, 1))
sketch2.addConstraint(Sketcher.Constraint("Vertical", 46, 3, 38, 1))
sketch2.addConstraint(Sketcher.Constraint("Equal", 16, 21))
sketch2.addConstraint(Sketcher.Constraint("Equal", 25, 27))
sketch2.addConstraint(Sketcher.Constraint("Radius", 10, Q("34 mm")))
sketch2.addConstraint(Sketcher.Constraint("Radius", 26, Q("18 mm")))
sketch2.addConstraint(Sketcher.Constraint("Radius", 48, Q("21.5 mm")))
sketch2.addConstraint(Sketcher.Constraint("DistanceX", 2, 1, 2, 2, Q("20 mm")))
sketch2.addConstraint(Sketcher.Constraint("DistanceY", 1, 2, 1, 1, Q("8 mm")))
sketch2.addConstraint(Sketcher.Constraint("DistanceY", 3, 2, 3, 1, Q("60 mm")))
sketch2.addConstraint(Sketcher.Constraint("DistanceY", 9, 1, 9, 2, Q("21 mm")))
sketch2.addConstraint(Sketcher.Constraint("DistanceY", 13, 1, 13, 2, Q("10 mm")))
sketch2.addConstraint(Sketcher.Constraint("Radius", 12, Q("2.25 mm")))
sketch2.addConstraint(Sketcher.Constraint("DistanceY", 26, 3, -1, 1, Q("75 mm")))
sketch2.addConstraint(Sketcher.Constraint("DistanceX", 12, 3, -1, 1, Q("23.5 mm")))
sketch2.addConstraint(Sketcher.Constraint("DistanceY", 12, 3, -1, 1, Q("98.5 mm")))
sketch2.addConstraint(Sketcher.Constraint("DistanceY", 17, 3, -1, 1, Q("41.5 mm")))
sketch2.addConstraint(Sketcher.Constraint("DistanceX", 18, 1, -1, 1, Q("23.950732 mm")))
sketch2.addConstraint(Sketcher.Constraint("DistanceX", 22, 1, -1, 1, Q("21.693188 mm")))
sketch2.addConstraint(Sketcher.Constraint("DistanceX", -1, 1, 49, 1, Q("15.592129 mm")))
sketch2.addConstraint(Sketcher.Constraint("DistanceX", 28, 1, -1, 1, Q("17.418464 mm")))
pad2 = doc.addObject("PartDesign::Pad", "Pad001")
body.addObject(pad2)
pad2.Profile = sketch2
pad2.Length = 10
pad2.Reversed = True

# Sketch on XZ plane
sketch3 = doc.addObject("Sketcher::SketchObject", "Sketch002")
body.addObject(sketch3)
sketch3.AttachmentSupport = (doc.XZ_Plane, [""])
sketch3.MapMode = "FlatFace"
sketch3.AttachmentOffset = App.Placement(Vector(0, 0, 49), App.Rotation())
sketch3.addGeometry(Part.Circle(Vector(44, 5, 0), Vector(0, 0, 1), 4), False)
sketch3.addGeometry(Part.Circle(Vector(-44, 5, 0), Vector(0, 0, 1), 4), False)
sketch3.addConstraint(Sketcher.Constraint("Equal", 0, 1))
sketch3.addConstraint(Sketcher.Constraint("Symmetric", 0, 3, 1, 3, -2))
sketch3.addConstraint(Sketcher.Constraint("Diameter", 0, Q("8 mm")))
sketch3.addConstraint(Sketcher.Constraint("DistanceX", -1, 1, 0, 3, Q("44 mm")))
sketch3.addConstraint(Sketcher.Constraint("DistanceY", -1, 1, 0, 3, Q("5 mm")))
pocket1 = doc.addObject("PartDesign::Pocket", "Pocket")
body.addObject(pocket1)
pocket1.Profile = sketch3
pocket1.Type = "ThroughAll"
doc.recompute()

fillet = doc.addObject("PartDesign::Fillet", "Fillet")
body.addObject(fillet)
fillet.Base = (pocket1, edges_at(pocket1, [
    (34, -21, 5),
    (54, -41, 5),
    (54, -49, 5),
    (34, -49, 5),
    (34, -109, 5),
    (-34, -109, 5),
    (-34, -49, 5),
    (-54, -49, 5),
    (-54, -41, 5),
    (-34, -21, 5),
]))
fillet.Radius = 2.5

# Sketch on XY plane
sketch4 = doc.addObject("Sketcher::SketchObject", "Sketch003")
body.addObject(sketch4)
sketch4.AttachmentSupport = (doc.XY_Plane, [""])
sketch4.MapMode = "FlatFace"
sketch4.AttachmentOffset = App.Placement(Vector(0, 0, 20), App.Rotation())
sketch4.addGeometry(Part.Circle(Vector(-30, -30, 0), Vector(0, 0, 1), 2.5), False)
sketch4.addGeometry(Part.Circle(Vector(30, -30, 0), Vector(0, 0, 1), 2.5), False)
sketch4.addConstraint(Sketcher.Constraint("Equal", 0, 1))
sketch4.addConstraint(Sketcher.Constraint("Symmetric", 0, 3, 1, 3, -2))
sketch4.addConstraint(Sketcher.Constraint("Diameter", 0, Q("5 mm")))
sketch4.addConstraint(Sketcher.Constraint("DistanceX", 0, 3, -1, 1, Q("30 mm")))
sketch4.addConstraint(Sketcher.Constraint("DistanceY", 0, 3, -1, 1, Q("30 mm")))
pocket2 = doc.addObject("PartDesign::Pocket", "Pocket001")
body.addObject(pocket2)
pocket2.Profile = sketch4
pocket2.Type = "ThroughAll"

# Sketch on XY plane
sketch5 = doc.addObject("Sketcher::SketchObject", "Sketch004")
body.addObject(sketch5)
sketch5.AttachmentSupport = (doc.XY_Plane, [""])
sketch5.MapMode = "FlatFace"
sketch5.AttachmentOffset = App.Placement(Vector(0, 0, 20), App.Rotation())
sketch5.addGeometry(Part.Circle(Vector(-30, -30, 0), Vector(0, 0, 1), 4.5), False)
sketch5.addGeometry(Part.Circle(Vector(-30, -30, 0), Vector(0, 0, 1), 2.5), False)
sketch5.addGeometry(Part.Circle(Vector(30, -30, 0), Vector(0, 0, 1), 4.5), False)
sketch5.addGeometry(Part.Circle(Vector(30, -30, 0), Vector(0, 0, 1), 2.5), False)
sketch5.addConstraint(Sketcher.Constraint("Coincident", 1, 3, 0, 3))
sketch5.addConstraint(Sketcher.Constraint("Coincident", 3, 3, 2, 3))
sketch5.addConstraint(Sketcher.Constraint("Equal", 0, 2))
sketch5.addConstraint(Sketcher.Constraint("Equal", 1, 3))
sketch5.addConstraint(Sketcher.Constraint("Symmetric", 0, 3, 2, 3, -2))
sketch5.addConstraint(Sketcher.Constraint("Diameter", 0, Q("9 mm")))
sketch5.addConstraint(Sketcher.Constraint("Diameter", 1, Q("5 mm")))
sketch5.addConstraint(Sketcher.Constraint("DistanceX", 0, 3, -1, 1, Q("30 mm")))
sketch5.addConstraint(Sketcher.Constraint("DistanceY", 0, 3, -1, 1, Q("30 mm")))
pocket3 = doc.addObject("PartDesign::Pocket", "Pocket002")
body.addObject(pocket3)
pocket3.Profile = sketch5
pocket3.Length = 5
doc.recompute()

fillet2 = doc.addObject("PartDesign::Fillet", "Fillet001")
body.addObject(fillet2)
fillet2.Base = (pocket3, edges_at(pocket3, [(0, -104, 0), (0, -36, 0)]))
fillet2.Radius = 2

doc.recompute()
